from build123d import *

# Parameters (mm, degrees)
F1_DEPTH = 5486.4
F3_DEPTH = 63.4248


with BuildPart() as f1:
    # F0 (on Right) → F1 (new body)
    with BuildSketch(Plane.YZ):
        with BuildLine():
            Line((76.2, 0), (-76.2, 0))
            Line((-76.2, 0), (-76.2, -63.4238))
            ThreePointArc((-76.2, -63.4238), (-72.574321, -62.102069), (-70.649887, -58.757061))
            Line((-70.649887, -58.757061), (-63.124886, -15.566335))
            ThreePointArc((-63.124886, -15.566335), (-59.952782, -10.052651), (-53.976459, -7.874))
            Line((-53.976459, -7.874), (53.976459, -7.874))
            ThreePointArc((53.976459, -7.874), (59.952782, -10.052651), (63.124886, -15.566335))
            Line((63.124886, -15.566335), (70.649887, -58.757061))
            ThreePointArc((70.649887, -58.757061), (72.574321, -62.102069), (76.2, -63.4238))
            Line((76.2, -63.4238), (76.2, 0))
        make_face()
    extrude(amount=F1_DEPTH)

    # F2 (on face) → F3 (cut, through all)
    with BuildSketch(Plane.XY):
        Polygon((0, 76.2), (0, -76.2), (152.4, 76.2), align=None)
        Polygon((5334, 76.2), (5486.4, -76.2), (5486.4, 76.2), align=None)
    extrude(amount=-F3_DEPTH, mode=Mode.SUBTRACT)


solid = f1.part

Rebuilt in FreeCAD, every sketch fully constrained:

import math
import FreeCAD as App
import Part
import Sketcher

V = App.Vector
Q = App.Units.Quantity

doc = App.newDocument("Part")
body = doc.addObject("PartDesign::Body", "Body")

# Sketch on YZ plane
sketch1 = body.newObject("Sketcher::SketchObject", "Sketch")
sketch1.AttachmentSupport = (doc.getObject("YZ_Plane"), [""])
sketch1.MapMode = "FlatFace"
sketch1.addGeometry(Part.LineSegment(V(76, 0, 0), V(-76, 0, 0)), False)
sketch1.addGeometry(Part.LineSegment(V(-76, 0, 0), V(-76, -63, 0)), False)
sketch1.addGeometry(Part.ArcOfCircle(Part.Circle(V(-76, -58, 0), V(0, 0, 1), 6), math.radians(-90), math.radians(-10)), False)
sketch1.addGeometry(Part.LineSegment(V(-71, -59, 0), V(-63, -16, 0)), False)
sketch1.addGeometry(Part.ArcOfCircle(Part.Circle(V(-54, -17, 0), V(0, 0, 1), 9), math.radians(90), math.radians(170)), False)
sketch1.addGeometry(Part.LineSegment(V(-54, -8, 0), V(54, -8, 0)), False)
sketch1.addGeometry(Part.ArcOfCircle(Part.Circle(V(54, -17, 0), V(0, 0, 1), 9), math.radians(10), math.radians(90)), False)
sketch1.addGeometry(Part.LineSegment(V(63, -16, 0), V(71, -59, 0)), False)
sketch1.addGeometry(Part.ArcOfCircle(Part.Circle(V(76, -58, 0), V(0, 0, 1), 6), math.radians(-170), math.radians(-90)), False)
sketch1.addGeometry(Part.LineSegment(V(76, -63, 0), V(76, 0, 0)), False)
sketch1.addConstraint(Sketcher.Constraint("Coincident", 0, 2, 1, 1))
sketch1.addConstraint(Sketcher.Constraint("Coincident", 1, 2, 2, 1))
sketch1.addConstraint(Sketcher.Constraint("Tangent", 2, 2, 3, 1))
sketch1.addConstraint(Sketcher.Constraint("Tangent", 3, 2, 4, 2))
sketch1.addConstraint(Sketcher.Constraint("Tangent", 4, 1, 5, 1))
sketch1.addConstraint(Sketcher.Constraint("Tangent", 5, 2, 6, 2))
sketch1.addConstraint(Sketcher.Constraint("Tangent", 6, 1, 7, 1))
sketch1.addConstraint(Sketcher.Constraint("Tangent", 7, 2, 8, 1))
sketch1.addConstraint(Sketcher.Constraint("Coincident", 8, 2, 9, 1))
sketch1.addConstraint(Sketcher.Constraint("Coincident", 9, 2, 0, 1))
sketch1.addConstraint(Sketcher.Constraint("Horizontal", 0))
sketch1.addConstraint(Sketcher.Constraint("Vertical", 1))
sketch1.addConstraint(Sketcher.Constraint("Horizontal", 5))
sketch1.addConstraint(Sketcher.Constraint("Vertical", 9))
sketch1.addConstraint(Sketcher.Constraint("Equal", 4, 6))
sketch1.addConstraint(Sketcher.Constraint("Equal", 2, 8))
sketch1.addConstraint(Sketcher.Constraint("Symmetric", 0, 2, 9, 2, -1, 1))
sketch1.addConstraint(Sketcher.Constraint("Symmetric", 2, 3, 8, 3, -2))
sketch1.addConstraint(Sketcher.Constraint("Horizontal", 3, 2, 6, 1))
sketch1.addConstraint(Sketcher.Constraint("Vertical", 2, 3, 0, 2))
sketch1.addConstraint(Sketcher.Constraint("DistanceX", 0, 2, 0, 1, Q("6 in")))
sketch1.addConstraint(Sketcher.Constraint("Radius", 2, Q("0.2218001 in")))
sketch1.addConstraint(Sketcher.Constraint("Radius", 4, Q("0.3656 in")))
sketch1.addConstraint(Sketcher.Constraint("DistanceY", 1, 2, 1, 1, Q("2.497 in")))
sketch1.addConstraint(Sketcher.Constraint("DistanceY", 4, 1, -1, 1, Q("0.31 in")))
sketch1.addConstraint(Sketcher.Constraint("DistanceX", 2, 2, 3, 2, Q("7.525001 mm")))
pad1 = body.newObject("PartDesign::Pad", "Pad")
pad1.Profile = sketch1
pad1.Length = Q("216 in")

# Sketch on XY plane
sketch2 = body.newObject("Sketcher::SketchObject", "Sketch001")
sketch2.AttachmentSupport = (doc.getObject("XY_Plane"), [""])
sketch2.MapMode = "FlatFace"
sketch2.addGeometry(Part.LineSegment(V(0, 76, 0), V(0, -76, 0)), False)
sketch2.addGeometry(Part.LineSegment(V(0, -76, 0), V(152, 76, 0)), False)
sketch2.addGeometry(Part.LineSegment(V(152, 76, 0), V(0, 76, 0)), False)
sketch2.addGeometry(Part.LineSegment(V(5334, 76, 0), V(5486, -76, 0)), False)
sketch2.addGeometry(Part.LineSegment(V(5486, -76, 0), V(5486, 76, 0)), False)
sketch2.addGeometry(Part.LineSegment(V(5486, 76, 0), V(5334, 76, 0)), False)
sketch2.addConstraint(Sketcher.Constraint("Coincident", 0, 2, 1, 1))
sketch2.addConstraint(Sketcher.Constraint("Coincident", 1, 2, 2, 1))
sketch2.addConstraint(Sketcher.Constraint("Coincident", 2, 2, 0, 1))
sketch2.addConstraint(Sketcher.Constraint("Coincident", 3, 2, 4, 1))
sketch2.addConstraint(Sketcher.Constraint("Coincident", 4, 2, 5, 1))
sketch2.addConstraint(Sketcher.Constraint("Coincident", 5, 2, 3, 1))
sketch2.addConstraint(Sketcher.Constraint("Vertical", 0))
sketch2.addConstraint(Sketcher.Constraint("Horizontal", 2))
sketch2.addConstraint(Sketcher.Constraint("Vertical", 4))
sketch2.addConstraint(Sketcher.Constraint("Horizontal", 5))
sketch2.addConstraint(Sketcher.Constraint("Symmetric", 0, 2, 2, 2, -1, 1))
sketch2.addConstraint(Sketcher.Constraint("Perpendicular", 1, 3))
sketch2.addConstraint(Sketcher.Constraint("Horizontal", 0, 2, 3, 2))
sketch2.addConstraint(Sketcher.Constraint("Horizontal", 2, 2, 4, 2))
sketch2.addConstraint(Sketcher.Constraint("Equal", 2, 5))
sketch2.addConstraint(Sketcher.Constraint("DistanceX", 2, 2, 2, 1, Q("6 in")))
sketch2.addConstraint(Sketcher.Constraint("DistanceX", -1, 1, 3, 2, Q("216 in")))
pocket1 = body.newObject("PartDesign::Pocket", "Pocket")
pocket1.Profile = sketch2
pocket1.Type = "ThroughAll"

doc.recompute()
